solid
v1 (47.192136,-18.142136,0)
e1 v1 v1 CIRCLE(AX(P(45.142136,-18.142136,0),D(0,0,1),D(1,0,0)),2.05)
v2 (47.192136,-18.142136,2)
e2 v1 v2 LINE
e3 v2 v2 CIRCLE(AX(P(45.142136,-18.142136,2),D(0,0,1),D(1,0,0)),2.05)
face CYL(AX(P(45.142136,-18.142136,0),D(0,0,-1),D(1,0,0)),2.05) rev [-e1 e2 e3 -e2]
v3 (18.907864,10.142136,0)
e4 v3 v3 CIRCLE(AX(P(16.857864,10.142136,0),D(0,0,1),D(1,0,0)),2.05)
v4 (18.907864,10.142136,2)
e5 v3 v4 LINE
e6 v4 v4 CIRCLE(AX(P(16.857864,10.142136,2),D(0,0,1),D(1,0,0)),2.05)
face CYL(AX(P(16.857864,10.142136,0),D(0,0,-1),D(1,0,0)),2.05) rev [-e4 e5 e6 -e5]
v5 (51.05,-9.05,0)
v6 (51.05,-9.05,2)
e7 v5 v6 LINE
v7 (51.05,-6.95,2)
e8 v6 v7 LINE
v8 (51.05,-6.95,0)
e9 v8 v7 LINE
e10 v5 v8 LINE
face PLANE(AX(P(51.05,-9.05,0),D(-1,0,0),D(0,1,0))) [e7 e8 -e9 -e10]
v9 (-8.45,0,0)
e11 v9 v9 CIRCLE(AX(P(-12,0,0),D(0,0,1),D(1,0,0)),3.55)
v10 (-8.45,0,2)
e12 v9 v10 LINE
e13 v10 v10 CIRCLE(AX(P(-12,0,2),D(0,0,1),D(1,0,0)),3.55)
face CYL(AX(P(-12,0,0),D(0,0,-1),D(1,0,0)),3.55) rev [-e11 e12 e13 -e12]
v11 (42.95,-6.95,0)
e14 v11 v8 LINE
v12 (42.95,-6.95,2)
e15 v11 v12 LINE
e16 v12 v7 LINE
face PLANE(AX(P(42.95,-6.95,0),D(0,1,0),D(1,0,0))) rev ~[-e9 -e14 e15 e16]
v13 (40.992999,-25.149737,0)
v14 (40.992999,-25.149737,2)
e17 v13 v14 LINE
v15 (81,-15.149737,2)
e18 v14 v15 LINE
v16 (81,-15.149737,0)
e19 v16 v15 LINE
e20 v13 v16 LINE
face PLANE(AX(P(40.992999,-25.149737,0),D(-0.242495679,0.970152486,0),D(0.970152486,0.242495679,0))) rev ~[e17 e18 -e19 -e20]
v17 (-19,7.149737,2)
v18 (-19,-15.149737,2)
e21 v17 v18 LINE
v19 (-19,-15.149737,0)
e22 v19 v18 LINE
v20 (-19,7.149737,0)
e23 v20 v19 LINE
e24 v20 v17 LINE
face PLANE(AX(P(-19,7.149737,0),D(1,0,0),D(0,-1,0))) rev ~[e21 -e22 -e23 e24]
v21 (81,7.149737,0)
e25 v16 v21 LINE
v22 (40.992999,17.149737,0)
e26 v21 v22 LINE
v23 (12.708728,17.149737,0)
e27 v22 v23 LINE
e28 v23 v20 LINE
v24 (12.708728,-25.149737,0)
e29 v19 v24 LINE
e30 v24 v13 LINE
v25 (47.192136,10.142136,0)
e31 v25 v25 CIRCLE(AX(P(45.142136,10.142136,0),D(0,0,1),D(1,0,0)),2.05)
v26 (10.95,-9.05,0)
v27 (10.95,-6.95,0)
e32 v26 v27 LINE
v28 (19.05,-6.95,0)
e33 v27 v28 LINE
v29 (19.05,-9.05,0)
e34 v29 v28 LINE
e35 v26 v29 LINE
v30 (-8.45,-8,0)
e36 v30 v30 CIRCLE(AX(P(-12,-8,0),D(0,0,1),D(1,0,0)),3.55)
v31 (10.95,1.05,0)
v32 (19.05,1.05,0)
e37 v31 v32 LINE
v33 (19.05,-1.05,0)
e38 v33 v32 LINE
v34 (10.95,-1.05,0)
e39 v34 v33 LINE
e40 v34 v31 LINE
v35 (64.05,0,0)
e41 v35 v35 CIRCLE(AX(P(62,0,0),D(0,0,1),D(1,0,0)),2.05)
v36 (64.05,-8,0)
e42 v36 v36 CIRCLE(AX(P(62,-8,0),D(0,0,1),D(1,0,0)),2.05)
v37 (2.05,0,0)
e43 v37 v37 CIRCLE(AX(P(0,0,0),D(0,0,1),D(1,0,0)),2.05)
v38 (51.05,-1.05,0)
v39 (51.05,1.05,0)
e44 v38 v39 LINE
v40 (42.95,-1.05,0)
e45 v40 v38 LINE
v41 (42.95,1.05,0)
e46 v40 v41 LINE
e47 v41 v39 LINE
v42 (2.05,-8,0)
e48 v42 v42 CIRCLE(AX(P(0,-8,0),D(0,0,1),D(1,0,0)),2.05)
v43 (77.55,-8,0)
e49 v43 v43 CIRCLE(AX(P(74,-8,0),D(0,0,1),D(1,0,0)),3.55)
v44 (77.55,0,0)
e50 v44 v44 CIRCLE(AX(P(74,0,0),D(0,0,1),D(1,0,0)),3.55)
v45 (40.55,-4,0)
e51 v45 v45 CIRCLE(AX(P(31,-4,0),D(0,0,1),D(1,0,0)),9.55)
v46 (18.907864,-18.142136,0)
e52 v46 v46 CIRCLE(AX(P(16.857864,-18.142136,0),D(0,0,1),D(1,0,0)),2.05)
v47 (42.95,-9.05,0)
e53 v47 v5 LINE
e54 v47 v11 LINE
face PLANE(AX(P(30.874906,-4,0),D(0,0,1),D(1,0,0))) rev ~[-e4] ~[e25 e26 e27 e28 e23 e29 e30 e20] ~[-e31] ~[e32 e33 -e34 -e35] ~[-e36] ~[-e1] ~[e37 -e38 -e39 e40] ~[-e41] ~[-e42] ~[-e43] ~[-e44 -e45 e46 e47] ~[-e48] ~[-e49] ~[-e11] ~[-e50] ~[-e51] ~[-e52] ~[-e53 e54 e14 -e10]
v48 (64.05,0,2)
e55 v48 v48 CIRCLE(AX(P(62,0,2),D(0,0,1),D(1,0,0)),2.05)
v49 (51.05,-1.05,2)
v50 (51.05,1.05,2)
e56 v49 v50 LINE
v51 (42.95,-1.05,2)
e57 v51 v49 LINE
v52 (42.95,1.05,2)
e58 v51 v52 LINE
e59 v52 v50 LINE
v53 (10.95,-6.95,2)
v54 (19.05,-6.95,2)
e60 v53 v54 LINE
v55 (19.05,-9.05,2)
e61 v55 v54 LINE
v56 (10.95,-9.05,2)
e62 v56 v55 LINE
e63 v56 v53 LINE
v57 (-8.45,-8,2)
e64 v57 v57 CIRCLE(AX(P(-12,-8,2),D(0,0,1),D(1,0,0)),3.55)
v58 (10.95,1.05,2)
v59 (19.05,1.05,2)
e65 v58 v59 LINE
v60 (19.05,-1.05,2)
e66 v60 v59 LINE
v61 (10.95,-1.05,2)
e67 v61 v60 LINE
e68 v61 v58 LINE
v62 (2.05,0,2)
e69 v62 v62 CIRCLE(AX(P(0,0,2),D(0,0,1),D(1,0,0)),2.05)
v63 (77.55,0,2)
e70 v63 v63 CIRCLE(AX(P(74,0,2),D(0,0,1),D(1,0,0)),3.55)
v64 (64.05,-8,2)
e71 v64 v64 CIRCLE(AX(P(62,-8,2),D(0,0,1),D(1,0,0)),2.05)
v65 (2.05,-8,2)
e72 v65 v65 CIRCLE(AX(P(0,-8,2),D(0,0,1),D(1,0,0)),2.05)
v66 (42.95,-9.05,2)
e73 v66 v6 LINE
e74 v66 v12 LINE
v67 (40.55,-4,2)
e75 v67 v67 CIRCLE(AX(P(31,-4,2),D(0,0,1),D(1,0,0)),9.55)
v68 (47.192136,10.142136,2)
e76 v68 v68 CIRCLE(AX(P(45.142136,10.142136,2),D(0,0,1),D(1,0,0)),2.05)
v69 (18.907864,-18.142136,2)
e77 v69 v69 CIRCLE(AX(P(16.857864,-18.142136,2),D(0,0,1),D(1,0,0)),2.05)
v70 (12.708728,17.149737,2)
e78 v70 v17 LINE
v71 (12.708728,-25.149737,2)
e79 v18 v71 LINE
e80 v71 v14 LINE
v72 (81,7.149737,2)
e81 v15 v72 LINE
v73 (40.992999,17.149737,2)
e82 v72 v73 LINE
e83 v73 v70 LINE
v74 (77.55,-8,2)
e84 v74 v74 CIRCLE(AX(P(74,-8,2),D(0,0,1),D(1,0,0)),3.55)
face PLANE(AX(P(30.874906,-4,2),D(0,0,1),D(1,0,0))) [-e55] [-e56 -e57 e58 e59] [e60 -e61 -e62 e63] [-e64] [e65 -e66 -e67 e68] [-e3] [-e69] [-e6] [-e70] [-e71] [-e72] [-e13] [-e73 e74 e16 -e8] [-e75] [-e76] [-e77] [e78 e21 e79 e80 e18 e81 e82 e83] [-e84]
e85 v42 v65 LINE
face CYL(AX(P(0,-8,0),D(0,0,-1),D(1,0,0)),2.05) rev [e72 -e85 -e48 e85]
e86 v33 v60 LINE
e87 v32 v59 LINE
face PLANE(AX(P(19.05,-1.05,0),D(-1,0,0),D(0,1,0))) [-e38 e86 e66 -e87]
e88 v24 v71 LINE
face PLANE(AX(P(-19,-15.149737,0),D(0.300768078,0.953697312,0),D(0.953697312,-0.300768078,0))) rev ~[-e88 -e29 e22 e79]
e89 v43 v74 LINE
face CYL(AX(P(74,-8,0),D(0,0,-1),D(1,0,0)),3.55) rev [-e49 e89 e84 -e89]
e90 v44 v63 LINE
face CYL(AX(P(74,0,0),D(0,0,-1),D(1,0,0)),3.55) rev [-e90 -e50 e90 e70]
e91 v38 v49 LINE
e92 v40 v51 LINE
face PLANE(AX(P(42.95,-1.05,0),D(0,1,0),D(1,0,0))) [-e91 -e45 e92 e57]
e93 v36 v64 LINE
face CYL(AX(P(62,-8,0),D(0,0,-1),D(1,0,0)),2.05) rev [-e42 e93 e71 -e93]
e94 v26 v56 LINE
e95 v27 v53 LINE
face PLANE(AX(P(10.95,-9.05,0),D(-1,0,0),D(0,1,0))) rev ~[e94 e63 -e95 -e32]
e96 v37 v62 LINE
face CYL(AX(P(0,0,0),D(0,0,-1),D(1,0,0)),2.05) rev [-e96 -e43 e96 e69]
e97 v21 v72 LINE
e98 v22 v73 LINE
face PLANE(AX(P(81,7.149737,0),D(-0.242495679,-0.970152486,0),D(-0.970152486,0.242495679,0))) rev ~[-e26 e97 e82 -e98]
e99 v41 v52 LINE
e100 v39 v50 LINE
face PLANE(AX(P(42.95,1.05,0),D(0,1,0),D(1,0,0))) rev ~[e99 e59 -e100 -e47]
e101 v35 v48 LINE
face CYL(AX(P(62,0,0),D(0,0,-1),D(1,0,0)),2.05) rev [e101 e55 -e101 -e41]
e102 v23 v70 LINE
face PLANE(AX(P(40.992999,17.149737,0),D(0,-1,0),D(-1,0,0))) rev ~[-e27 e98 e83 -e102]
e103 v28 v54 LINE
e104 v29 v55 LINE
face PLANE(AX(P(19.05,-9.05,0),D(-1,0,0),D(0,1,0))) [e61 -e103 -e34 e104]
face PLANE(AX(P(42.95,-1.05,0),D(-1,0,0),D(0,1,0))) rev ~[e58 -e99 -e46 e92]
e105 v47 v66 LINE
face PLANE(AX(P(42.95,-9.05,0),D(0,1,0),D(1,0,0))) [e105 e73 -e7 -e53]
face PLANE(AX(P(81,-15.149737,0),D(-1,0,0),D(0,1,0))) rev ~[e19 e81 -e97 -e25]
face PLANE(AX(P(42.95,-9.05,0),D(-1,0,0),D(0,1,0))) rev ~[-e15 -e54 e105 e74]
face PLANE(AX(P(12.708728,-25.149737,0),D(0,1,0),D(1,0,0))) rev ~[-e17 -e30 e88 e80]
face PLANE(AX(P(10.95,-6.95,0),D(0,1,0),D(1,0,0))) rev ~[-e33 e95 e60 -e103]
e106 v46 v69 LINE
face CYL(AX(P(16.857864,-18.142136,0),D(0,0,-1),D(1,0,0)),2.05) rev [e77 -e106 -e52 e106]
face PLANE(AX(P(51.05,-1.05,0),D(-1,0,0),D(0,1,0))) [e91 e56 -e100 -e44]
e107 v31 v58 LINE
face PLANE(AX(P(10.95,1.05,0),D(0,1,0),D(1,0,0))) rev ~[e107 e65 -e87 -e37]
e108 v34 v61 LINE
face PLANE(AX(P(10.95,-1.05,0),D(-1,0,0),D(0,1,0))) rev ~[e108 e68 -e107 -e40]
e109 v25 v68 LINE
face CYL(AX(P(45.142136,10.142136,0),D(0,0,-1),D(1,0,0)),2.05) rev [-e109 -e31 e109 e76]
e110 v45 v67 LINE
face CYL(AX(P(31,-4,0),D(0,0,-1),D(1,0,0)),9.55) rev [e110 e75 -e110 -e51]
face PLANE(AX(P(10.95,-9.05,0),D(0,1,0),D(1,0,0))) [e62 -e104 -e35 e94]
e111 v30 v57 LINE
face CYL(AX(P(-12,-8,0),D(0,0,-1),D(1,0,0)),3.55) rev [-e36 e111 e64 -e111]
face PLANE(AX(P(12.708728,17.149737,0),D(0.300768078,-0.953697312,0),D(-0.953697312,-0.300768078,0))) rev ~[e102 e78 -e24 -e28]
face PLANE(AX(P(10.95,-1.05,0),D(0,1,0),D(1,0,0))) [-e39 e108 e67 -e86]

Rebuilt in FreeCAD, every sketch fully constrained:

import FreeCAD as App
import Part
import Sketcher
from FreeCAD import Vector
Q = App.Units.Quantity


def add_polygon(sketch, points):
    """Adds a closed chain of lines whose ends are joined by coincident constraints."""
    first, n = sketch.GeometryCount, len(points)
    for a, b in zip(points, points[1:] + points[:1]):
        sketch.addGeometry(Part.LineSegment(App.Vector(*a, 0), App.Vector(*b, 0)), False)
    for i in range(n):
        sketch.addConstraint(Sketcher.Constraint("Coincident", first + i, 2, first + (i + 1) % n, 1))

doc = App.newDocument("Part")
body = doc.addObject("PartDesign::Body", "Body")

# Sketch on XY plane
sketch1 = body.newObject("Sketcher::SketchObject", "Sketch")
sketch1.AttachmentSupport = (doc.getObject("XY_Plane"), [""])
sketch1.MapMode = "FlatFace"
add_polygon(sketch1, [(81, -15.1), (81, 7.1), (41, 17.1), (12.7, 17.1), (-19, 7.1), (-19, -15.1), (12.7, -25.1), (41, -25.1)])  # lines 0-7
sketch1.addGeometry(Part.Circle(Vector(16.9, -18.1, 0), Vector(0, 0, 1), 2), False)  # 8
sketch1.addGeometry(Part.Circle(Vector(-12, -8, 0), Vector(0, 0, 1), 3.5), False)  # 9
sketch1.addGeometry(Part.Circle(Vector(0, -8, 0), Vector(0, 0, 1), 2), False)  # 10
add_polygon(sketch1, [(19.1, -9.1), (10.9, -9.1), (10.9, -7), (19.1, -7)])  # lines 11-14
sketch1.addGeometry(Part.Circle(Vector(45.1, -18.1, 0), Vector(0, 0, 1), 2), False)  # 15
add_polygon(sketch1, [(51, -9.1), (43, -9.1), (43, -7), (51, -7)])  # lines 16-19
sketch1.addGeometry(Part.Circle(Vector(62, -8, 0), Vector(0, 0, 1), 2), False)  # 20
sketch1.addGeometry(Part.Circle(Vector(74, -8, 0), Vector(0, 0, 1), 3.5), False)  # 21
sketch1.addGeometry(Part.Circle(Vector(-12, 0, 0), Vector(0, 0, 1), 3.5), False)  # 22
sketch1.addGeometry(Part.Circle(Vector(0, 0, 0), Vector(0, 0, 1), 2), False)  # 23
add_polygon(sketch1, [(19.1, -1.1), (10.9, -1.1), (10.9, 1.1), (19.1, 1.1)])  # lines 24-27
sketch1.addGeometry(Part.Circle(Vector(16.9, 10.1, 0), Vector(0, 0, 1), 2), False)  # 28
sketch1.addGeometry(Part.Circle(Vector(31, -4, 0), Vector(0, 0, 1), 9.6), False)  # 29
add_polygon(sketch1, [(51, -1.1), (43, -1.1), (43, 1.1), (51, 1.1)])  # lines 30-33
sketch1.addGeometry(Part.Circle(Vector(62, 0, 0), Vector(0, 0, 1), 2), False)  # 34
sketch1.addGeometry(Part.Circle(Vector(74, 0, 0), Vector(0, 0, 1), 3.5), False)  # 35
sketch1.addGeometry(Part.Circle(Vector(45.1, 10.1, 0), Vector(0, 0, 1), 2), False)  # 36
sketch1.addConstraint([
    Sketcher.Constraint("Vertical", 0),
    Sketcher.Constraint("Horizontal", 2),
    Sketcher.Constraint("Vertical", 4),
    Sketcher.Constraint("Horizontal", 6),
    Sketcher.Constraint("Horizontal", 11),
    Sketcher.Constraint("Vertical", 12),
    Sketcher.Constraint("Horizontal", 13),
    Sketcher.Constraint("Vertical", 14),
    Sketcher.Constraint("Horizontal", 16),
    Sketcher.Constraint("Vertical", 17),
    Sketcher.Constraint("Horizontal", 18),
    Sketcher.Constraint("Vertical", 19),
    Sketcher.Constraint("Horizontal", 24),
    Sketcher.Constraint("Vertical", 25),
    Sketcher.Constraint("Horizontal", 26),
    Sketcher.Constraint("Vertical", 27),
    Sketcher.Constraint("Horizontal", 30),
    Sketcher.Constraint("Vertical", 31),
    Sketcher.Constraint("Horizontal", 32),
    Sketcher.Constraint("Vertical", 33),
    Sketcher.Constraint("Coincident", 23, 3, -1, 1),
    Sketcher.Constraint("Equal", 8, 10),
    Sketcher.Constraint("Equal", 10, 15),
    Sketcher.Constraint("Equal", 15, 20),
    Sketcher.Constraint("Equal", 9, 21),
    Sketcher.Constraint("Equal", 21, 22),
    Sketcher.Constraint("Equal", 20, 23),
    Sketcher.Constraint("Equal", 23, 28),
    Sketcher.Constraint("Equal", 28, 34),
    Sketcher.Constraint("Equal", 22, 35),
    Sketcher.Constraint("Equal", 34, 36),
    Sketcher.Constraint("PointOnObject", 10, 3, -2),
    Sketcher.Constraint("PointOnObject", 22, 3, -1),
    Sketcher.Constraint("PointOnObject", 34, 3, -1),
    Sketcher.Constraint("PointOnObject", 35, 3, -1),
    Sketcher.Constraint("Horizontal", 9, 3, 10, 3),
    Sketcher.Constraint("Horizontal", 8, 3, 15, 3),
    Sketcher.Constraint("Horizontal", 10, 3, 20, 3),
    Sketcher.Constraint("Horizontal", 20, 3, 21, 3),
    Sketcher.Constraint("Horizontal", 28, 3, 36, 3),
    Sketcher.Constraint("Horizontal", 0, 2, 3, 2),
    Sketcher.Constraint("Horizontal", 4, 2, 7, 2),
    Sketcher.Constraint("Horizontal", 14, 2, 16, 2),
    Sketcher.Constraint("Horizontal", 13, 2, 17, 2),
    Sketcher.Constraint("Horizontal", 27, 2, 30, 2),
    Sketcher.Constraint("Horizontal", 26, 2, 31, 2),
    Sketcher.Constraint("Vertical", 9, 3, 22, 3),
    Sketcher.Constraint("Vertical", 8, 3, 28, 3),
    Sketcher.Constraint("Vertical", 20, 3, 34, 3),
    Sketcher.Constraint("Vertical", 21, 3, 35, 3),
    Sketcher.Constraint("Vertical", 15, 3, 36, 3),
    Sketcher.Constraint("Vertical", 2, 2, 5, 2),
    Sketcher.Constraint("Vertical", 1, 2, 6, 2),
    Sketcher.Constraint("Vertical", 12, 2, 24, 2),
    Sketcher.Constraint("Vertical", 14, 2, 26, 2),
    Sketcher.Constraint("Vertical", 17, 2, 30, 2),
    Sketcher.Constraint("Vertical", 19, 2, 32, 2),
    Sketcher.Constraint("Equal", 13, 16),
    Sketcher.Constraint("Equal", 19, 25),
    Sketcher.Constraint("Equal", 3, 5),
    Sketcher.Constraint("Diameter", 8, Q("4.1 mm")),
    Sketcher.Constraint("Diameter", 9, Q("7.1 mm")),
    Sketcher.Constraint("Diameter", 29, Q("19.1 mm")),
    Sketcher.Constraint("DistanceX", 11, 2, 11, 1, Q("8.1 mm")),
    Sketcher.Constraint("DistanceY", 12, 1, 12, 2, Q("2.1 mm")),
    Sketcher.Constraint("DistanceX", 9, 3, -1, 1, Q("12 mm")),
    Sketcher.Constraint("DistanceY", 9, 3, -1, 1, Q("8 mm")),
    Sketcher.Constraint("DistanceX", -1, 1, 20, 3, Q("62 mm")),
    Sketcher.Constraint("DistanceX", -1, 1, 21, 3, Q("74 mm")),
    Sketcher.Constraint("DistanceX", -1, 1, 29, 3, Q("31 mm")),
    Sketcher.Constraint("DistanceY", 29, 3, -1, 1, Q("4 mm")),
    Sketcher.Constraint("DistanceX", -1, 1, 0, 2, Q("81 mm")),
    Sketcher.Constraint("DistanceX", 3, 2, -1, 1, Q("19 mm")),
    Sketcher.Constraint("DistanceY", 3, 2, 2, 2, Q("10 mm")),
    Sketcher.Constraint("DistanceY", 11, 2, 24, 2, Q("8 mm")),
    Sketcher.Constraint("DistanceX", -1, 1, 11, 2, Q("10.95 mm")),
    Sketcher.Constraint("DistanceY", 11, 2, -1, 1, Q("9.05 mm")),
    Sketcher.Constraint("DistanceX", -1, 1, 16, 2, Q("42.95 mm")),
    Sketcher.Constraint("DistanceX", -1, 1, 1, 2, Q("40.992999 mm")),
    Sketcher.Constraint("DistanceX", 2, 2, 2, 1, Q("28.284271 mm")),
    Sketcher.Constraint("DistanceY", 0, 2, 36, 3, Q("2.992399 mm")),
    Sketcher.Constraint("DistanceY", 5, 2, 8, 3, Q("7.007601 mm")),
    Sketcher.Constraint("DistanceY", 0, 1, 0, 2, Q("22.299474 mm")),
    Sketcher.Constraint("DistanceX", 8, 3, 15, 3, Q("28.284271 mm")),
    Sketcher.Constraint("DistanceX", -1, 1, 8, 3, Q("16.857864 mm")),
    Sketcher.Constraint("DistanceY", 8, 3, -1, 1, Q("18.142136 mm")),
])
pad1 = body.newObject("PartDesign::Pad", "Pad")
pad1.Profile = sketch1
pad1.Length = 2

doc.recompute()
